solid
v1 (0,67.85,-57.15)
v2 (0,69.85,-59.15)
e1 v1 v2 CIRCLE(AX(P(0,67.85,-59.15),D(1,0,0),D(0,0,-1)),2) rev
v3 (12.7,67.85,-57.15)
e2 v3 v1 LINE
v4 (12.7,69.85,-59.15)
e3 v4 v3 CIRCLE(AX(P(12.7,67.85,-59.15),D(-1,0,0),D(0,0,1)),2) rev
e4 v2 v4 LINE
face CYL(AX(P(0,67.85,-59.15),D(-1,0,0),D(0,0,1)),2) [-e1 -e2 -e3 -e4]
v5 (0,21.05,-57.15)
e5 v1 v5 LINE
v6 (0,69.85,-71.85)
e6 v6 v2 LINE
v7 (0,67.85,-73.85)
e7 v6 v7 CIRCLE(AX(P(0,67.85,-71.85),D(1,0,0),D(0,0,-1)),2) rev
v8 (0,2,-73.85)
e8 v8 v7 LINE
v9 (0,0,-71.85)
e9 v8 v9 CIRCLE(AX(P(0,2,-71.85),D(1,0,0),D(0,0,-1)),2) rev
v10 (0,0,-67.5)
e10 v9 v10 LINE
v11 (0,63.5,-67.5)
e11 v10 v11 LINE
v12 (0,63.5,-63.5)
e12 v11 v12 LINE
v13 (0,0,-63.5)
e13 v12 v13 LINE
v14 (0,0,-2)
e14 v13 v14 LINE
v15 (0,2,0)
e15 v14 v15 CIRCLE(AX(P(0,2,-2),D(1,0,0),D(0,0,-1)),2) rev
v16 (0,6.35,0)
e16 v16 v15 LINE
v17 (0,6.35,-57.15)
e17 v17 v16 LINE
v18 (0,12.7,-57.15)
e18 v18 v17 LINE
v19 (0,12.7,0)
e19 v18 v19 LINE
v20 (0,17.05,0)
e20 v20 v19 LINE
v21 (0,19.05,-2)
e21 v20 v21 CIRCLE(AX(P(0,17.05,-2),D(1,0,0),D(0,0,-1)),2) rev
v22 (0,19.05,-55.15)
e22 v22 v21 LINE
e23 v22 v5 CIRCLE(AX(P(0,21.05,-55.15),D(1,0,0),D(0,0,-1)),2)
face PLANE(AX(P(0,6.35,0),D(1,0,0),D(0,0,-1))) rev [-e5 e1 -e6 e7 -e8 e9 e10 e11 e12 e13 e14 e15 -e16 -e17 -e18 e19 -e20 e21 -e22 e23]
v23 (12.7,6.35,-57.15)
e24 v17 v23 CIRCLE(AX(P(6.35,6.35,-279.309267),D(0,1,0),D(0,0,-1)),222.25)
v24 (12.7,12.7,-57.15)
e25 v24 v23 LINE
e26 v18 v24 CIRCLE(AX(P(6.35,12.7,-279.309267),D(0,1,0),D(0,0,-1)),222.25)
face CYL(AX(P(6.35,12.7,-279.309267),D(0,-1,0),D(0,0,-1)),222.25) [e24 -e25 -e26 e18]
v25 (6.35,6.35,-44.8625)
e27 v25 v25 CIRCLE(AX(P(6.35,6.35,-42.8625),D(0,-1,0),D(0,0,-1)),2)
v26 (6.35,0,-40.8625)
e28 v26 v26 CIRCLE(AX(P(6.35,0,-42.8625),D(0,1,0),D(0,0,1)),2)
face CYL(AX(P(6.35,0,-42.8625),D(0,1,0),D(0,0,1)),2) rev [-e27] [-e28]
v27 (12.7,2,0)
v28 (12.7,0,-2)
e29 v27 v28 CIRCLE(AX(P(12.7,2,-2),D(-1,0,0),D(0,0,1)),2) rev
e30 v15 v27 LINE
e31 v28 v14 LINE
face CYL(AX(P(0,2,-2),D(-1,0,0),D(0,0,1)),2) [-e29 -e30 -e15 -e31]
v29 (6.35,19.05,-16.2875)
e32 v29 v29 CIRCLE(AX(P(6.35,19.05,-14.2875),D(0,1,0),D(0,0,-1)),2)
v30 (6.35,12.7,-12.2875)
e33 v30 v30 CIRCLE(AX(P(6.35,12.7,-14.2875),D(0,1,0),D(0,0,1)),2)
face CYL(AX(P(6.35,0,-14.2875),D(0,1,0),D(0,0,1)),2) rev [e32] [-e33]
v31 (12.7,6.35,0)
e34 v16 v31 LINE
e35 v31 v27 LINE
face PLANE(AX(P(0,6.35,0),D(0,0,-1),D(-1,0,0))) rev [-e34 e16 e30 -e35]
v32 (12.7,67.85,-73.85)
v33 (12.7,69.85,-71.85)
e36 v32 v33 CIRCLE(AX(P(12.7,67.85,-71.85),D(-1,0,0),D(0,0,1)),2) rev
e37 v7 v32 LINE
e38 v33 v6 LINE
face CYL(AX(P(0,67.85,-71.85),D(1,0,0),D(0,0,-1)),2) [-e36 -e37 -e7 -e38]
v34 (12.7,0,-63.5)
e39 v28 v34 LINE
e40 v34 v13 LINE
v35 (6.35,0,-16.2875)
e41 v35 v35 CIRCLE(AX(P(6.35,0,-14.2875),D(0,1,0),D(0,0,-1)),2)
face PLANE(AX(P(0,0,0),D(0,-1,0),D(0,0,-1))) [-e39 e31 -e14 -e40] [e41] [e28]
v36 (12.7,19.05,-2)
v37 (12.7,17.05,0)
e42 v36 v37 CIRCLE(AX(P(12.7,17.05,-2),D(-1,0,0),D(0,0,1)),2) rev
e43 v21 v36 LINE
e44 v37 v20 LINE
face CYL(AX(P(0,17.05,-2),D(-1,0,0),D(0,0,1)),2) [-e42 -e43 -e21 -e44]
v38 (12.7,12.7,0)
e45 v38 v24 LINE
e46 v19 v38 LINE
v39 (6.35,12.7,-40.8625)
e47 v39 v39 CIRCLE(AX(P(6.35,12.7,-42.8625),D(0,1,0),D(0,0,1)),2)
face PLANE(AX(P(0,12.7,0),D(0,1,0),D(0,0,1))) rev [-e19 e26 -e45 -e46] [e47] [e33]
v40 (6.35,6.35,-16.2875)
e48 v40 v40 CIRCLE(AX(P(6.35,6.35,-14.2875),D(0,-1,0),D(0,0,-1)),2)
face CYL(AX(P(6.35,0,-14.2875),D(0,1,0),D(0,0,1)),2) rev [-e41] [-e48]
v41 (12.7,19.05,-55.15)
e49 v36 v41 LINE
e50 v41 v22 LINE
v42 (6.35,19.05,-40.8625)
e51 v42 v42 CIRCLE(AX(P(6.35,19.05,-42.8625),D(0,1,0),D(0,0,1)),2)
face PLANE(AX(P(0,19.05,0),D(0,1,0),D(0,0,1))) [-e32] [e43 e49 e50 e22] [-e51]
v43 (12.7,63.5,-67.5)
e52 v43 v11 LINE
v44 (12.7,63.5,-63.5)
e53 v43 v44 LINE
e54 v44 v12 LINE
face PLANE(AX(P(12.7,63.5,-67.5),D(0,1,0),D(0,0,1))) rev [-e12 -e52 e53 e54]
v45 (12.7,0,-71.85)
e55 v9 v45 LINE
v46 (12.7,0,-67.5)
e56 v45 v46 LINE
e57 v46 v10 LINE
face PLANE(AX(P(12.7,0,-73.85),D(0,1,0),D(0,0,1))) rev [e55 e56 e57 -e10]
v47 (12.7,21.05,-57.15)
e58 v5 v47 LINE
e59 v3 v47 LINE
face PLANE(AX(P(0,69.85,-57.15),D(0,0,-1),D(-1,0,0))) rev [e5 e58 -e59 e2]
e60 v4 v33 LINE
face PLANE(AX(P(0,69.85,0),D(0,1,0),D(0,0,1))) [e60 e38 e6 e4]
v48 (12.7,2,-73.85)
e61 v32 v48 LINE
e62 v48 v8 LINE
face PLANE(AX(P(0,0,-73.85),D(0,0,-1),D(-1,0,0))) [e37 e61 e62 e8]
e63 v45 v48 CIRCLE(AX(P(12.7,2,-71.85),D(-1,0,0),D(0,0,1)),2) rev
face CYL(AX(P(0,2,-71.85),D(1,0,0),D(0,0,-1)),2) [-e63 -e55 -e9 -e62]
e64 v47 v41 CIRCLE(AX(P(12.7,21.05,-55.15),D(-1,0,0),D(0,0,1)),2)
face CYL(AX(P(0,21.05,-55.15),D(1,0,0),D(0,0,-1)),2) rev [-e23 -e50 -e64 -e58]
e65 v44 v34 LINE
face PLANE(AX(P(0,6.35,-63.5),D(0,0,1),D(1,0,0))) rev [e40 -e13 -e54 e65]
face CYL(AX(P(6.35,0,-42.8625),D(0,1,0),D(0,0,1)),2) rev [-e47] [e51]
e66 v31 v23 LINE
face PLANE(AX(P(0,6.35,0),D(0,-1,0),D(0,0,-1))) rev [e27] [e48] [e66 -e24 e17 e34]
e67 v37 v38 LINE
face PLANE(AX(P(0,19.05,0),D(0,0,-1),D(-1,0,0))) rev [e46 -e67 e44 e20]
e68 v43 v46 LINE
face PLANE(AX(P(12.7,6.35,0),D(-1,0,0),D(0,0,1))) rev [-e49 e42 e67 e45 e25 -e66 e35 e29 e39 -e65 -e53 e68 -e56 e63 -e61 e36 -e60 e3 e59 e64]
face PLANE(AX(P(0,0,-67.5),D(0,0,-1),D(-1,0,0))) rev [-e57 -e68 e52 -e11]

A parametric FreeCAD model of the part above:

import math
import FreeCAD as App
import Part
import Sketcher
Q = App.Units.Quantity


def edges_at(feature, points):
    """Names of the edges that pass closest to the given points."""
    edges = feature.Shape.Edges
    near = lambda p: min(range(len(edges)), key=lambda i: edges[i].distToShape(Part.Vertex(*p))[0])
    return sorted({f"Edge{near(p) + 1}" for p in points})

doc = App.newDocument("Part")
params = doc.addObject("Spreadsheet::Sheet", "Params")
for row, (alias, value) in enumerate([
    ("sketch1_width", "0.5 in"),
    ("sketch1_height", "2.5 in"),
    ("pad1_length", "0.25 in"),
    ("sketch2_width", "0.5 in"),
    ("sketch2_height", "0.25 in"),
    ("pad2_length", "0.25 in"),
    ("sketch3_width", "0.5 in"),
    ("sketch3_height", "2.5 in"),
    ("pad3_length", "0.25 in"),
    ("sketch4_width", "0.5 in"),
    ("sketch4_height", "0.25 in"),
    ("pad4_length", "2 in"),
    ("sketch5_width", "0.5 in"),
    ("sketch5_height", "0.25 in"),
    ("pad5_length", "4 mm"),
    ("sketch6_width", "0.5 in"),
    ("sketch6_height", "2.75 in"),
    ("pad6_length", "0.25 in"),
    ("sketch7_radius", "8.75 in"),
    ("sketch7_width", "0.5 in"),
    ("pad7_length", "0.25 in"),
    ("fillet_radius", "2 mm"),
    ("fillet2_radius", "2 mm"),
], start=1):
    params.set(f"A{row}", alias)
    params.set(f"B{row}", "=" + value)
    params.setAlias(f"B{row}", alias)

body = doc.addObject("PartDesign::Body", "Body")

# Sketch on XZ plane
sketch1 = body.newObject("Sketcher::SketchObject", "Sketch")
sketch1.AttachmentSupport = (doc.getObject("XZ_Plane"), [""])
sketch1.MapMode = "FlatFace"
sketch1.addGeometry([
    Part.LineSegment(App.Vector(0, -64, 0), App.Vector(0, 0, 0)),
    Part.LineSegment(App.Vector(0, 0, 0), App.Vector(13, 0, 0)),
    Part.LineSegment(App.Vector(13, 0, 0), App.Vector(13, -64, 0)),
    Part.LineSegment(App.Vector(13, -64, 0), App.Vector(0, -64, 0)),
], False)
sketch1.addConstraint([
    Sketcher.Constraint("Coincident", 0, 2, 1, 1),
    Sketcher.Constraint("Coincident", 1, 2, 2, 1),
    Sketcher.Constraint("Coincident", 2, 2, 3, 1),
    Sketcher.Constraint("Coincident", 3, 2, 0, 1),
    Sketcher.Constraint("Vertical", 0),
    Sketcher.Constraint("Horizontal", 1),
    Sketcher.Constraint("Vertical", 2),
    Sketcher.Constraint("Horizontal", 3),
    Sketcher.Constraint("Coincident", 0, 2, -1, 1),
    Sketcher.Constraint("DistanceX", 1, 1, 1, 2, Q("0.5 in")),
    Sketcher.Constraint("DistanceY", 0, 1, 0, 2, Q("2.5 in")),
])
sketch1.setExpression("Constraints[9]", "Params.sketch1_width")
sketch1.setExpression("Constraints[10]", "Params.sketch1_height")
pad1 = body.newObject("PartDesign::Pad", "Pad")
pad1.Profile = sketch1
pad1.setExpression("Length", "Params.pad1_length")
pad1.Reversed = True

# Sketch on XZ plane
sketch2 = body.newObject("Sketcher::SketchObject", "Sketch001")
sketch2.AttachmentSupport = (doc.getObject("XZ_Plane"), [""])
sketch2.MapMode = "FlatFace"
sketch2.AttachmentOffset = App.Placement(App.Vector(0, 0, -0.25 * 25.4), App.Rotation())
sketch2.addGeometry([
    Part.LineSegment(App.Vector(0, -64, 0), App.Vector(0, -57, 0)),
    Part.LineSegment(App.Vector(0, -57, 0), App.Vector(13, -57, 0)),
    Part.LineSegment(App.Vector(13, -57, 0), App.Vector(13, -64, 0)),
    Part.LineSegment(App.Vector(13, -64, 0), App.Vector(0, -64, 0)),
], False)
sketch2.addConstraint([
    Sketcher.Constraint("Coincident", 0, 2, 1, 1),
    Sketcher.Constraint("Coincident", 1, 2, 2, 1),
    Sketcher.Constraint("Coincident", 2, 2, 3, 1),
    Sketcher.Constraint("Coincident", 3, 2, 0, 1),
    Sketcher.Constraint("Vertical", 0),
    Sketcher.Constraint("Horizontal", 1),
    Sketcher.Constraint("Vertical", 2),
    Sketcher.Constraint("Horizontal", 3),
    Sketcher.Constraint("PointOnObject", 0, 2, -2),
    Sketcher.Constraint("DistanceX", 1, 1, 1, 2, Q("0.5 in")),
    Sketcher.Constraint("DistanceY", 0, 1, 0, 2, Q("0.25 in")),
    Sketcher.Constraint("DistanceY", 2, 2, -1, 1, Q("2.5 in")),
])
sketch2.setExpression("Constraints[9]", "Params.sketch2_width")
sketch2.setExpression("Constraints[10]", "Params.sketch2_height")
pad2 = body.newObject("PartDesign::Pad", "Pad001")
pad2.Profile = sketch2
pad2.setExpression("Length", "Params.pad2_length")
pad2.Reversed = True

# Sketch on XZ plane
sketch3 = body.newObject("Sketcher::SketchObject", "Sketch002")
sketch3.AttachmentSupport = (doc.getObject("XZ_Plane"), [""])
sketch3.MapMode = "FlatFace"
sketch3.AttachmentOffset = App.Placement(App.Vector(0, 0, -0.5 * 25.4), App.Rotation())
sketch3.addGeometry([
    Part.LineSegment(App.Vector(0, -64, 0), App.Vector(0, 0, 0)),
    Part.LineSegment(App.Vector(0, 0, 0), App.Vector(13, 0, 0)),
    Part.LineSegment(App.Vector(13, 0, 0), App.Vector(13, -64, 0)),
    Part.LineSegment(App.Vector(13, -64, 0), App.Vector(0, -64, 0)),
], False)
sketch3.addConstraint([
    Sketcher.Constraint("Coincident", 0, 2, 1, 1),
    Sketcher.Constraint("Coincident", 1, 2, 2, 1),
    Sketcher.Constraint("Coincident", 2, 2, 3, 1),
    Sketcher.Constraint("Coincident", 3, 2, 0, 1),
    Sketcher.Constraint("Vertical", 0),
    Sketcher.Constraint("Horizontal", 1),
    Sketcher.Constraint("Vertical", 2),
    Sketcher.Constraint("Horizontal", 3),
    Sketcher.Constraint("Coincident", 0, 2, -1, 1),
    Sketcher.Constraint("DistanceX", 1, 1, 1, 2, Q("0.5 in")),
    Sketcher.Constraint("DistanceY", 0, 1, 0, 2, Q("2.5 in")),
])
sketch3.setExpression("Constraints[9]", "Params.sketch3_width")
sketch3.setExpression("Constraints[10]", "Params.sketch3_height")
pad3 = body.newObject("PartDesign::Pad", "Pad002")
pad3.Profile = sketch3
pad3.setExpression("Length", "Params.pad3_length")
pad3.Reversed = True

# Sketch on XZ plane
sketch4 = body.newObject("Sketcher::SketchObject", "Sketch003")
sketch4.AttachmentSupport = (doc.getObject("XZ_Plane"), [""])
sketch4.MapMode = "FlatFace"
sketch4.AttachmentOffset = App.Placement(App.Vector(0, 0, -0.75 * 25.4), App.Rotation())
sketch4.addGeometry([
    Part.LineSegment(App.Vector(0, -64, 0), App.Vector(0, -57, 0)),
    Part.LineSegment(App.Vector(0, -57, 0), App.Vector(13, -57, 0)),
    Part.LineSegment(App.Vector(13, -57, 0), App.Vector(13, -64, 0)),
    Part.LineSegment(App.Vector(13, -64, 0), App.Vector(0, -64, 0)),
], False)
sketch4.addConstraint([
    Sketcher.Constraint("Coincident", 0, 2, 1, 1),
    Sketcher.Constraint("Coincident", 1, 2, 2, 1),
    Sketcher.Constraint("Coincident", 2, 2, 3, 1),
    Sketcher.Constraint("Coincident", 3, 2, 0, 1),
    Sketcher.Constraint("Vertical", 0),
    Sketcher.Constraint("Horizontal", 1),
    Sketcher.Constraint("Vertical", 2),
    Sketcher.Constraint("Horizontal", 3),
    Sketcher.Constraint("PointOnObject", 0, 2, -2),
    Sketcher.Constraint("DistanceX", 1, 1, 1, 2, Q("0.5 in")),
    Sketcher.Constraint("DistanceY", 0, 1, 0, 2, Q("0.25 in")),
    Sketcher.Constraint("DistanceY", 2, 2, -1, 1, Q("2.5 in")),
])
sketch4.setExpression("Constraints[9]", "Params.sketch4_width")
sketch4.setExpression("Constraints[10]", "Params.sketch4_height")
pad4 = body.newObject("PartDesign::Pad", "Pad003")
pad4.Profile = sketch4
pad4.setExpression("Length", "Params.pad4_length")
pad4.Reversed = True

# Sketch on XY plane
sketch5 = body.newObject("Sketcher::SketchObject", "Sketch004")
sketch5.AttachmentSupport = (doc.getObject("XY_Plane"), [""])
sketch5.MapMode = "FlatFace"
sketch5.AttachmentOffset = App.Placement(App.Vector(0, 0, -2.5 * 25.4), App.Rotation())
sketch5.addGeometry([
    Part.LineSegment(App.Vector(13, 70, 0), App.Vector(13, 64, 0)),
    Part.LineSegment(App.Vector(13, 64, 0), App.Vector(0, 64, 0)),
    Part.LineSegment(App.Vector(0, 64, 0), App.Vector(0, 70, 0)),
    Part.LineSegment(App.Vector(0, 70, 0), App.Vector(13, 70, 0)),
], False)
sketch5.addConstraint([
    Sketcher.Constraint("Coincident", 0, 2, 1, 1),
    Sketcher.Constraint("Coincident", 1, 2, 2, 1),
    Sketcher.Constraint("Coincident", 2, 2, 3, 1),
    Sketcher.Constraint("Coincident", 3, 2, 0, 1),
    Sketcher.Constraint("Vertical", 0),
    Sketcher.Constraint("Horizontal", 1),
    Sketcher.Constraint("Vertical", 2),
    Sketcher.Constraint("Horizontal", 3),
    Sketcher.Constraint("PointOnObject", 1, 2, -2),
    Sketcher.Constraint("DistanceX", 1, 2, 1, 1, Q("0.5 in")),
    Sketcher.Constraint("DistanceY", 0, 2, 0, 1, Q("0.25 in")),
    Sketcher.Constraint("DistanceY", -1, 1, 0, 2, Q("2.5 in")),
])
sketch5.setExpression("Constraints[9]", "Params.sketch5_width")
sketch5.setExpression("Constraints[10]", "Params.sketch5_height")
pad5 = body.newObject("PartDesign::Pad", "Pad004")
pad5.Profile = sketch5
pad5.setExpression("Length", "Params.pad5_length")
pad5.Reversed = True

# Sketch on XY plane
sketch6 = body.newObject("Sketcher::SketchObject", "Sketch005")
sketch6.AttachmentSupport = (doc.getObject("XY_Plane"), [""])
sketch6.MapMode = "FlatFace"
sketch6.AttachmentOffset = App.Placement(App.Vector(0, 0, -67.5), App.Rotation())
sketch6.addGeometry([
    Part.LineSegment(App.Vector(13, 70, 0), App.Vector(13, 0, 0)),
    Part.LineSegment(App.Vector(13, 0, 0), App.Vector(0, 0, 0)),
    Part.LineSegment(App.Vector(0, 0, 0), App.Vector(0, 70, 0)),
    Part.LineSegment(App.Vector(0, 70, 0), App.Vector(13, 70, 0)),
], False)
sketch6.addConstraint([
    Sketcher.Constraint("Coincident", 0, 2, 1, 1),
    Sketcher.Constraint("Coincident", 1, 2, 2, 1),
    Sketcher.Constraint("Coincident", 2, 2, 3, 1),
    Sketcher.Constraint("Coincident", 3, 2, 0, 1),
    Sketcher.Constraint("Vertical", 0),
    Sketcher.Constraint("Horizontal", 1),
    Sketcher.Constraint("Vertical", 2),
    Sketcher.Constraint("Horizontal", 3),
    Sketcher.Constraint("Coincident", 1, 2, -1, 1),
    Sketcher.Constraint("DistanceX", 1, 2, 1, 1, Q("0.5 in")),
    Sketcher.Constraint("DistanceY", 0, 2, 0, 1, Q("2.75 in")),
])
sketch6.setExpression("Constraints[9]", "Params.sketch6_width")
sketch6.setExpression("Constraints[10]", "Params.sketch6_height")
pad6 = body.newObject("PartDesign::Pad", "Pad005")
pad6.Profile = sketch6
pad6.setExpression("Length", "Params.pad6_length")
pad6.Reversed = True

# Sketch on XZ plane
sketch7 = body.newObject("Sketcher::SketchObject", "Sketch006")
sketch7.AttachmentSupport = (doc.getObject("XZ_Plane"), [""])
sketch7.MapMode = "FlatFace"
sketch7.AttachmentOffset = App.Placement(App.Vector(0, 0, -0.25 * 25.4), App.Rotation())
sketch7.addGeometry([
    Part.LineSegment(App.Vector(13, -57, 0), App.Vector(0, -57, 0)),
    Part.ArcOfCircle(Part.Circle(App.Vector(6, -279, 0), App.Vector(0, 0, 1), 222), math.radians(88.36), math.radians(91.64)),
], False)
sketch7.addConstraint([
    Sketcher.Constraint("Coincident", 0, 1, 1, 1),
    Sketcher.Constraint("Coincident", 1, 2, 0, 2),
    Sketcher.Constraint("Horizontal", 0),
    Sketcher.Constraint("PointOnObject", 1, 2, -2),
    Sketcher.Constraint("Radius", 1, Q("8.75 in")),
    Sketcher.Constraint("DistanceX", 0, 2, 0, 1, Q("0.5 in")),
    Sketcher.Constraint("DistanceY", 0, 1, -1, 1, Q("2.25 in")),
])
sketch7.setExpression("Constraints[4]", "Params.sketch7_radius")
sketch7.setExpression("Constraints[5]", "Params.sketch7_width")
pad7 = body.newObject("PartDesign::Pad", "Pad006")
pad7.Profile = sketch7
pad7.setExpression("Length", "Params.pad7_length")
pad7.Reversed = True

# Sketch on XZ plane
sketch8 = body.newObject("Sketcher::SketchObject", "Sketch007")
sketch8.AttachmentSupport = (doc.getObject("XZ_Plane"), [""])
sketch8.MapMode = "FlatFace"
sketch8.AttachmentOffset = App.Placement(App.Vector(0, 0, -0.75 * 25.4), App.Rotation())
sketch8.addGeometry([
    Part.Circle(App.Vector(6.3, -42.9, 0), App.Vector(0, 0, 1), 2),
    Part.Circle(App.Vector(6.3, -14.3, 0), App.Vector(0, 0, 1), 2),
], False)
sketch8.addConstraint([
    Sketcher.Constraint("Equal", 0, 1),
    Sketcher.Constraint("Vertical", 0, 3, 1, 3),
    Sketcher.Constraint("Diameter", 0, 4.0),
    Sketcher.Constraint("DistanceX", -1, 1, 0, 3, Q("0.25 in")),
    Sketcher.Constraint("DistanceY", 0, 3, -1, 1, Q("1.6875 in")),
    Sketcher.Constraint("DistanceY", 1, 3, -1, 1, Q("0.5625 in")),
])
pocket1 = body.newObject("PartDesign::Pocket", "Pocket")
pocket1.Profile = sketch8
pocket1.Type = "ThroughAll"
pocket1.Reversed = True
doc.recompute()

fillet = body.newObject("PartDesign::Fillet", "Fillet")
fillet.Base = (pocket1, edges_at(pocket1, [
    (6.35, 19.05, 0),
    (6.35, 69.85, -57.15),
    (6.35, 0, 0),
    (6.35, 0, -73.85),
    (6.35, 69.85, -73.85),
]))
fillet.setExpression("Radius", "Params.fillet_radius")
doc.recompute()

fillet2 = body.newObject("PartDesign::Fillet", "Fillet001")
fillet2.Base = (fillet, edges_at(fillet, [(6.35, 19.05, -57.15)]))
fillet2.setExpression("Radius", "Params.fillet2_radius")

doc.recompute()
